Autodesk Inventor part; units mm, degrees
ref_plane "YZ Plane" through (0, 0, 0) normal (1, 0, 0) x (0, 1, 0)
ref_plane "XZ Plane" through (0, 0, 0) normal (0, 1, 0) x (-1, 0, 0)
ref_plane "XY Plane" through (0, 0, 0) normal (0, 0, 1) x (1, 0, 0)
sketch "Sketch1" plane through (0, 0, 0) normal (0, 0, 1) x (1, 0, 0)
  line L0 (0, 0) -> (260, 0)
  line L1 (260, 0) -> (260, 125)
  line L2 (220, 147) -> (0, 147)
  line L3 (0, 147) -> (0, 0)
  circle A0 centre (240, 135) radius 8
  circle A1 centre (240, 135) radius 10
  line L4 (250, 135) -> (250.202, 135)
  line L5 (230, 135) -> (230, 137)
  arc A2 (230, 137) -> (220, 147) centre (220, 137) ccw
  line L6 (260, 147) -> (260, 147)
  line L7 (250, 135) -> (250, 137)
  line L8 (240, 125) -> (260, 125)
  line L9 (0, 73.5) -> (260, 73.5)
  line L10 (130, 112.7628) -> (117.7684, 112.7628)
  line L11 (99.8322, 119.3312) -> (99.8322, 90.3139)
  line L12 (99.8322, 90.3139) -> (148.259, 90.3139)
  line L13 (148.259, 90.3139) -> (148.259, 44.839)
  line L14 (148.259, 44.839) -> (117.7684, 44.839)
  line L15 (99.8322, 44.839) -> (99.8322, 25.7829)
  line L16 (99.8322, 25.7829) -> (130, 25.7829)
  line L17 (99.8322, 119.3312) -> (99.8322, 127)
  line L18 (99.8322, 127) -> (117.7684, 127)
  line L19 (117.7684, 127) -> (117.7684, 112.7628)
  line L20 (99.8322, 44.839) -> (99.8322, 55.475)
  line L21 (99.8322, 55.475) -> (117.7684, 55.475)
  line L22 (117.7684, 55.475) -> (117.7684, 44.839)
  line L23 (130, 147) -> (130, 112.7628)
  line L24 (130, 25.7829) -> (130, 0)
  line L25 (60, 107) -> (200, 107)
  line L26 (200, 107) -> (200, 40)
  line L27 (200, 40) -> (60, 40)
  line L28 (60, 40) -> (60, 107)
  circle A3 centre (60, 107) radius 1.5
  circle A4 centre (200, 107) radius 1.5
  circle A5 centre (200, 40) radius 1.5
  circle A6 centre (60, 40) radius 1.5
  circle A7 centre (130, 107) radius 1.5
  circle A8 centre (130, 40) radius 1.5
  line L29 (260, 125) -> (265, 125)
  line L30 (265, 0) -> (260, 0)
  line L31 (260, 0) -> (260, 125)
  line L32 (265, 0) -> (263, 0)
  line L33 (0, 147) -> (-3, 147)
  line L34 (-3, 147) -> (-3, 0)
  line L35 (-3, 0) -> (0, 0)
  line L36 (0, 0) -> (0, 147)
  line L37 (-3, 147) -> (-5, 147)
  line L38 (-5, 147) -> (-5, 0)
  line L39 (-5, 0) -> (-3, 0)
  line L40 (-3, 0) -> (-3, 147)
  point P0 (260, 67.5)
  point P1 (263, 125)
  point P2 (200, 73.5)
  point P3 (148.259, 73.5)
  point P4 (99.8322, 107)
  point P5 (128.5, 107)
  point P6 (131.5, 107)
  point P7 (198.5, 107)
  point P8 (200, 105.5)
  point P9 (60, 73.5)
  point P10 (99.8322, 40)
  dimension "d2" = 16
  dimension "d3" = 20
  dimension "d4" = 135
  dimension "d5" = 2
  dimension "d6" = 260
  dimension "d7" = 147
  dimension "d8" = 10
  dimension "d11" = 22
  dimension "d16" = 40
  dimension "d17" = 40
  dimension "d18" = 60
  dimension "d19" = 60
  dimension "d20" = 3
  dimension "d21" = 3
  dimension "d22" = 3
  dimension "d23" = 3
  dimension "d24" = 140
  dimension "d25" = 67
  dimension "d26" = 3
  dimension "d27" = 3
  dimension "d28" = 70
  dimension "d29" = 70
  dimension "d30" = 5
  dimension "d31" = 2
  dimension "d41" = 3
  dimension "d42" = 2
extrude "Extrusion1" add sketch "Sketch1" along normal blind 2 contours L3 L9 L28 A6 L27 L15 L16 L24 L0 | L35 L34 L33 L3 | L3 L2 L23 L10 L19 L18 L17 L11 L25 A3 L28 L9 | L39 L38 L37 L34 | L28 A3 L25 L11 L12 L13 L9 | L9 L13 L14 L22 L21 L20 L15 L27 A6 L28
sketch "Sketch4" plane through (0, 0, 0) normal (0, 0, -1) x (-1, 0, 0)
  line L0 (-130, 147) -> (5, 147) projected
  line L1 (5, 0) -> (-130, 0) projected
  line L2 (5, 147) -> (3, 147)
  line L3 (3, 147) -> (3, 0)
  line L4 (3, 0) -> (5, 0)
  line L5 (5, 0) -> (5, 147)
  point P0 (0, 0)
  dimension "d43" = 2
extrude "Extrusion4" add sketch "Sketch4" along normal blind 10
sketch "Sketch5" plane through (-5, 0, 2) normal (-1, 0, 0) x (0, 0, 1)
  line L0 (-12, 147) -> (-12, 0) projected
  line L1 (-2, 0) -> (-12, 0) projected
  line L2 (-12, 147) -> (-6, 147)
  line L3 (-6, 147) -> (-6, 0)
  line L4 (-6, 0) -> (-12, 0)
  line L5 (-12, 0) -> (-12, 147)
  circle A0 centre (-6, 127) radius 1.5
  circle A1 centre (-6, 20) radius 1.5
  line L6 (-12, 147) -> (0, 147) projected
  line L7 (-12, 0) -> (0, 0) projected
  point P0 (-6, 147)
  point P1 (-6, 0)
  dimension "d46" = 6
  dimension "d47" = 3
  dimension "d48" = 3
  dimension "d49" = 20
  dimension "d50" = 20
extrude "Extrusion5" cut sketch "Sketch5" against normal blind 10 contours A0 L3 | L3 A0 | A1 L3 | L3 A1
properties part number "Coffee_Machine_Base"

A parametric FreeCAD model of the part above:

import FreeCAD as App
import Part
import Sketcher

V = App.Vector

doc = App.newDocument("Part")
params = doc.addObject("Spreadsheet::Sheet", "Params")
for row, (alias, value) in enumerate([
    ("sketch1_diameter", "3 mm"),
    ("sketch1_width", "135 mm"),
    ("sketch1_height", "147 mm"),
    ("pad1_length", "2 mm"),
    ("sketch2_width", "2 mm"),
    ("sketch2_height", "147 mm"),
    ("pad2_length", "10 mm"),
    ("sketch3_diameter", "3 mm"),
    ("pocket1_length", "10 mm"),
], start=1):
    params.set(f"A{row}", alias)
    params.set(f"B{row}", "=" + value)
    params.setAlias(f"B{row}", alias)

body = doc.addObject("PartDesign::Body", "Body")

# Sketch on XY plane
sketch1 = body.newObject("Sketcher::SketchObject", "Sketch")
sketch1.AttachmentSupport = (doc.getObject("XY_Plane"), [""])
sketch1.MapMode = "FlatFace"
sketch1.addGeometry([
    Part.LineSegment(V(99.8, 25.8, 0), V(99.8, 55.5, 0)),  # 0
    Part.LineSegment(V(99.8, 55.5, 0), V(117.8, 55.5, 0)),  # 1
    Part.LineSegment(V(117.8, 55.5, 0), V(117.8, 44.8, 0)),  # 2
    Part.LineSegment(V(117.8, 44.8, 0), V(148.3, 44.8, 0)),  # 3
    Part.LineSegment(V(148.3, 44.8, 0), V(148.3, 90.3, 0)),  # 4
    Part.LineSegment(V(148.3, 90.3, 0), V(99.8, 90.3, 0)),  # 5
    Part.LineSegment(V(99.8, 90.3, 0), V(99.8, 127, 0)),  # 6
    Part.LineSegment(V(99.8, 127, 0), V(117.8, 127, 0)),  # 7
    Part.LineSegment(V(117.8, 127, 0), V(117.8, 112.8, 0)),  # 8
    Part.LineSegment(V(117.8, 112.8, 0), V(130, 112.8, 0)),  # 9
    Part.LineSegment(V(130, 112.8, 0), V(130, 147, 0)),  # 10
    Part.LineSegment(V(130, 147, 0), V(-5, 147, 0)),  # 11
    Part.LineSegment(V(-5, 147, 0), V(-5, 0, 0)),  # 12
    Part.LineSegment(V(-5, 0, 0), V(130, 0, 0)),  # 13
    Part.LineSegment(V(130, 0, 0), V(130, 25.8, 0)),  # 14
    Part.LineSegment(V(130, 25.8, 0), V(99.8, 25.8, 0)),  # 15
    Part.Circle(V(60, 40, 0), V(0, 0, 1), 1.5),  # 16
    Part.Circle(V(60, 107, 0), V(0, 0, 1), 1.5),  # 17
], False)
sketch1.addConstraint([
    Sketcher.Constraint("Coincident", 0, 2, 1, 1),
    Sketcher.Constraint("Coincident", 1, 2, 2, 1),
    Sketcher.Constraint("Coincident", 2, 2, 3, 1),
    Sketcher.Constraint("Coincident", 3, 2, 4, 1),
    Sketcher.Constraint("Coincident", 4, 2, 5, 1),
    Sketcher.Constraint("Coincident", 5, 2, 6, 1),
    Sketcher.Constraint("Coincident", 6, 2, 7, 1),
    Sketcher.Constraint("Coincident", 7, 2, 8, 1),
    Sketcher.Constraint("Coincident", 8, 2, 9, 1),
    Sketcher.Constraint("Coincident", 9, 2, 10, 1),
    Sketcher.Constraint("Coincident", 10, 2, 11, 1),
    Sketcher.Constraint("Coincident", 11, 2, 12, 1),
    Sketcher.Constraint("Coincident", 12, 2, 13, 1),
    Sketcher.Constraint("Coincident", 13, 2, 14, 1),
    Sketcher.Constraint("Coincident", 14, 2, 15, 1),
    Sketcher.Constraint("Coincident", 15, 2, 0, 1),
    Sketcher.Constraint("Vertical", 0),
    Sketcher.Constraint("Horizontal", 1),
    Sketcher.Constraint("Vertical", 2),
    Sketcher.Constraint("Horizontal", 3),
    Sketcher.Constraint("Vertical", 4),
    Sketcher.Constraint("Horizontal", 5),
    Sketcher.Constraint("Vertical", 6),
    Sketcher.Constraint("Horizontal", 7),
    Sketcher.Constraint("Vertical", 8),
    Sketcher.Constraint("Horizontal", 9),
    Sketcher.Constraint("Vertical", 10),
    Sketcher.Constraint("Horizontal", 11),
    Sketcher.Constraint("Vertical", 12),
    Sketcher.Constraint("Horizontal", 13),
    Sketcher.Constraint("Vertical", 14),
    Sketcher.Constraint("Horizontal", 15),
    Sketcher.Constraint("Equal", 16, 17),
    Sketcher.Constraint("PointOnObject", 12, 2, -1),
    Sketcher.Constraint("Vertical", 16, 3, 17, 3),
    Sketcher.Constraint("Vertical", 0, 2, 5, 2),
    Sketcher.Constraint("Vertical", 2, 2, 7, 2),
    Sketcher.Constraint("Vertical", 10, 2, 13, 2),
    Sketcher.Constraint("Diameter", 16, 3.0),
    Sketcher.Constraint("DistanceX", 11, 2, 11, 1, 135.0),
    Sketcher.Constraint("DistanceY", 12, 2, 12, 1, 147.0),
    Sketcher.Constraint("DistanceX", -1, 1, 16, 3, 60.0),
    Sketcher.Constraint("DistanceY", -1, 1, 16, 3, 40.0),
    Sketcher.Constraint("DistanceX", 11, 2, -1, 1, 5.0),
    Sketcher.Constraint("DistanceY", 16, 3, 17, 3, 67.0),
    Sketcher.Constraint("DistanceY", 17, 3, 6, 2, 20.0),
    Sketcher.Constraint("DistanceY", 0, 1, 0, 2, 29.692),
    Sketcher.Constraint("DistanceY", 2, 2, 2, 1, 10.636),
    Sketcher.Constraint("DistanceY", 4, 1, 4, 2, 45.475),
    Sketcher.Constraint("DistanceY", 6, 1, 6, 2, 36.686),
    Sketcher.Constraint("DistanceX", 1, 1, 1, 2, 17.9362),
    Sketcher.Constraint("DistanceX", 3, 1, 3, 2, 30.4906),
    Sketcher.Constraint("DistanceX", 9, 1, 9, 2, 12.2316),
    Sketcher.Constraint("DistanceY", 8, 2, 8, 1, 14.2372),
])
sketch1.setExpression("Constraints[38]", "Params.sketch1_diameter")
sketch1.setExpression("Constraints[39]", "Params.sketch1_width")
sketch1.setExpression("Constraints[40]", "Params.sketch1_height")
pad1 = body.newObject("PartDesign::Pad", "Pad")
pad1.Profile = sketch1
pad1.setExpression("Length", "Params.pad1_length")

# Sketch on XY plane
sketch2 = body.newObject("Sketcher::SketchObject", "Sketch001")
sketch2.AttachmentSupport = (doc.getObject("XY_Plane"), [""])
sketch2.MapMode = "FlatFace"
sketch2.addGeometry([
    Part.LineSegment(V(-5, 147, 0), V(-3, 147, 0)),
    Part.LineSegment(V(-3, 147, 0), V(-3, 0, 0)),
    Part.LineSegment(V(-3, 0, 0), V(-5, 0, 0)),
    Part.LineSegment(V(-5, 0, 0), V(-5, 147, 0)),
], False)
sketch2.addConstraint([
    Sketcher.Constraint("Coincident", 0, 2, 1, 1),
    Sketcher.Constraint("Coincident", 1, 2, 2, 1),
    Sketcher.Constraint("Coincident", 2, 2, 3, 1),
    Sketcher.Constraint("Coincident", 3, 2, 0, 1),
    Sketcher.Constraint("Horizontal", 0),
    Sketcher.Constraint("Vertical", 1),
    Sketcher.Constraint("Horizontal", 2),
    Sketcher.Constraint("Vertical", 3),
    Sketcher.Constraint("PointOnObject", 1, 2, -1),
    Sketcher.Constraint("DistanceX", 0, 1, 0, 2, 2.0),
    Sketcher.Constraint("DistanceY", 1, 2, 1, 1, 147.0),
    Sketcher.Constraint("DistanceX", 0, 2, -1, 1, 3.0),
])
sketch2.setExpression("Constraints[9]", "Params.sketch2_width")
sketch2.setExpression("Constraints[10]", "Params.sketch2_height")
pad2 = body.newObject("PartDesign::Pad", "Pad001")
pad2.Profile = sketch2
pad2.setExpression("Length", "Params.pad2_length")
pad2.Reversed = True

# Sketch on YZ plane
sketch3 = body.newObject("Sketcher::SketchObject", "Sketch002")
sketch3.AttachmentSupport = (doc.getObject("YZ_Plane"), [""])
sketch3.MapMode = "FlatFace"
sketch3.AttachmentOffset = App.Placement(V(0, 0, -5), App.Rotation())
sketch3.addGeometry([
    Part.Circle(V(127, -4, 0), V(0, 0, 1), 1.5),
    Part.Circle(V(20, -4, 0), V(0, 0, 1), 1.5),
], False)
sketch3.addConstraint([
    Sketcher.Constraint("Equal", 0, 1),
    Sketcher.Constraint("Horizontal", 0, 3, 1, 3),
    Sketcher.Constraint("Diameter", 0, 3.0),
    Sketcher.Constraint("DistanceX", -1, 1, 1, 3, 20.0),
    Sketcher.Constraint("DistanceX", -1, 1, 0, 3, 127.0),
    Sketcher.Constraint("DistanceY", 0, 3, -1, 1, 4.0),
])
sketch3.setExpression("Constraints[2]", "Params.sketch3_diameter")
pocket1 = body.newObject("PartDesign::Pocket", "Pocket")
pocket1.Profile = sketch3
pocket1.setExpression("Length", "Params.pocket1_length")
pocket1.Reversed = True

doc.recompute()
